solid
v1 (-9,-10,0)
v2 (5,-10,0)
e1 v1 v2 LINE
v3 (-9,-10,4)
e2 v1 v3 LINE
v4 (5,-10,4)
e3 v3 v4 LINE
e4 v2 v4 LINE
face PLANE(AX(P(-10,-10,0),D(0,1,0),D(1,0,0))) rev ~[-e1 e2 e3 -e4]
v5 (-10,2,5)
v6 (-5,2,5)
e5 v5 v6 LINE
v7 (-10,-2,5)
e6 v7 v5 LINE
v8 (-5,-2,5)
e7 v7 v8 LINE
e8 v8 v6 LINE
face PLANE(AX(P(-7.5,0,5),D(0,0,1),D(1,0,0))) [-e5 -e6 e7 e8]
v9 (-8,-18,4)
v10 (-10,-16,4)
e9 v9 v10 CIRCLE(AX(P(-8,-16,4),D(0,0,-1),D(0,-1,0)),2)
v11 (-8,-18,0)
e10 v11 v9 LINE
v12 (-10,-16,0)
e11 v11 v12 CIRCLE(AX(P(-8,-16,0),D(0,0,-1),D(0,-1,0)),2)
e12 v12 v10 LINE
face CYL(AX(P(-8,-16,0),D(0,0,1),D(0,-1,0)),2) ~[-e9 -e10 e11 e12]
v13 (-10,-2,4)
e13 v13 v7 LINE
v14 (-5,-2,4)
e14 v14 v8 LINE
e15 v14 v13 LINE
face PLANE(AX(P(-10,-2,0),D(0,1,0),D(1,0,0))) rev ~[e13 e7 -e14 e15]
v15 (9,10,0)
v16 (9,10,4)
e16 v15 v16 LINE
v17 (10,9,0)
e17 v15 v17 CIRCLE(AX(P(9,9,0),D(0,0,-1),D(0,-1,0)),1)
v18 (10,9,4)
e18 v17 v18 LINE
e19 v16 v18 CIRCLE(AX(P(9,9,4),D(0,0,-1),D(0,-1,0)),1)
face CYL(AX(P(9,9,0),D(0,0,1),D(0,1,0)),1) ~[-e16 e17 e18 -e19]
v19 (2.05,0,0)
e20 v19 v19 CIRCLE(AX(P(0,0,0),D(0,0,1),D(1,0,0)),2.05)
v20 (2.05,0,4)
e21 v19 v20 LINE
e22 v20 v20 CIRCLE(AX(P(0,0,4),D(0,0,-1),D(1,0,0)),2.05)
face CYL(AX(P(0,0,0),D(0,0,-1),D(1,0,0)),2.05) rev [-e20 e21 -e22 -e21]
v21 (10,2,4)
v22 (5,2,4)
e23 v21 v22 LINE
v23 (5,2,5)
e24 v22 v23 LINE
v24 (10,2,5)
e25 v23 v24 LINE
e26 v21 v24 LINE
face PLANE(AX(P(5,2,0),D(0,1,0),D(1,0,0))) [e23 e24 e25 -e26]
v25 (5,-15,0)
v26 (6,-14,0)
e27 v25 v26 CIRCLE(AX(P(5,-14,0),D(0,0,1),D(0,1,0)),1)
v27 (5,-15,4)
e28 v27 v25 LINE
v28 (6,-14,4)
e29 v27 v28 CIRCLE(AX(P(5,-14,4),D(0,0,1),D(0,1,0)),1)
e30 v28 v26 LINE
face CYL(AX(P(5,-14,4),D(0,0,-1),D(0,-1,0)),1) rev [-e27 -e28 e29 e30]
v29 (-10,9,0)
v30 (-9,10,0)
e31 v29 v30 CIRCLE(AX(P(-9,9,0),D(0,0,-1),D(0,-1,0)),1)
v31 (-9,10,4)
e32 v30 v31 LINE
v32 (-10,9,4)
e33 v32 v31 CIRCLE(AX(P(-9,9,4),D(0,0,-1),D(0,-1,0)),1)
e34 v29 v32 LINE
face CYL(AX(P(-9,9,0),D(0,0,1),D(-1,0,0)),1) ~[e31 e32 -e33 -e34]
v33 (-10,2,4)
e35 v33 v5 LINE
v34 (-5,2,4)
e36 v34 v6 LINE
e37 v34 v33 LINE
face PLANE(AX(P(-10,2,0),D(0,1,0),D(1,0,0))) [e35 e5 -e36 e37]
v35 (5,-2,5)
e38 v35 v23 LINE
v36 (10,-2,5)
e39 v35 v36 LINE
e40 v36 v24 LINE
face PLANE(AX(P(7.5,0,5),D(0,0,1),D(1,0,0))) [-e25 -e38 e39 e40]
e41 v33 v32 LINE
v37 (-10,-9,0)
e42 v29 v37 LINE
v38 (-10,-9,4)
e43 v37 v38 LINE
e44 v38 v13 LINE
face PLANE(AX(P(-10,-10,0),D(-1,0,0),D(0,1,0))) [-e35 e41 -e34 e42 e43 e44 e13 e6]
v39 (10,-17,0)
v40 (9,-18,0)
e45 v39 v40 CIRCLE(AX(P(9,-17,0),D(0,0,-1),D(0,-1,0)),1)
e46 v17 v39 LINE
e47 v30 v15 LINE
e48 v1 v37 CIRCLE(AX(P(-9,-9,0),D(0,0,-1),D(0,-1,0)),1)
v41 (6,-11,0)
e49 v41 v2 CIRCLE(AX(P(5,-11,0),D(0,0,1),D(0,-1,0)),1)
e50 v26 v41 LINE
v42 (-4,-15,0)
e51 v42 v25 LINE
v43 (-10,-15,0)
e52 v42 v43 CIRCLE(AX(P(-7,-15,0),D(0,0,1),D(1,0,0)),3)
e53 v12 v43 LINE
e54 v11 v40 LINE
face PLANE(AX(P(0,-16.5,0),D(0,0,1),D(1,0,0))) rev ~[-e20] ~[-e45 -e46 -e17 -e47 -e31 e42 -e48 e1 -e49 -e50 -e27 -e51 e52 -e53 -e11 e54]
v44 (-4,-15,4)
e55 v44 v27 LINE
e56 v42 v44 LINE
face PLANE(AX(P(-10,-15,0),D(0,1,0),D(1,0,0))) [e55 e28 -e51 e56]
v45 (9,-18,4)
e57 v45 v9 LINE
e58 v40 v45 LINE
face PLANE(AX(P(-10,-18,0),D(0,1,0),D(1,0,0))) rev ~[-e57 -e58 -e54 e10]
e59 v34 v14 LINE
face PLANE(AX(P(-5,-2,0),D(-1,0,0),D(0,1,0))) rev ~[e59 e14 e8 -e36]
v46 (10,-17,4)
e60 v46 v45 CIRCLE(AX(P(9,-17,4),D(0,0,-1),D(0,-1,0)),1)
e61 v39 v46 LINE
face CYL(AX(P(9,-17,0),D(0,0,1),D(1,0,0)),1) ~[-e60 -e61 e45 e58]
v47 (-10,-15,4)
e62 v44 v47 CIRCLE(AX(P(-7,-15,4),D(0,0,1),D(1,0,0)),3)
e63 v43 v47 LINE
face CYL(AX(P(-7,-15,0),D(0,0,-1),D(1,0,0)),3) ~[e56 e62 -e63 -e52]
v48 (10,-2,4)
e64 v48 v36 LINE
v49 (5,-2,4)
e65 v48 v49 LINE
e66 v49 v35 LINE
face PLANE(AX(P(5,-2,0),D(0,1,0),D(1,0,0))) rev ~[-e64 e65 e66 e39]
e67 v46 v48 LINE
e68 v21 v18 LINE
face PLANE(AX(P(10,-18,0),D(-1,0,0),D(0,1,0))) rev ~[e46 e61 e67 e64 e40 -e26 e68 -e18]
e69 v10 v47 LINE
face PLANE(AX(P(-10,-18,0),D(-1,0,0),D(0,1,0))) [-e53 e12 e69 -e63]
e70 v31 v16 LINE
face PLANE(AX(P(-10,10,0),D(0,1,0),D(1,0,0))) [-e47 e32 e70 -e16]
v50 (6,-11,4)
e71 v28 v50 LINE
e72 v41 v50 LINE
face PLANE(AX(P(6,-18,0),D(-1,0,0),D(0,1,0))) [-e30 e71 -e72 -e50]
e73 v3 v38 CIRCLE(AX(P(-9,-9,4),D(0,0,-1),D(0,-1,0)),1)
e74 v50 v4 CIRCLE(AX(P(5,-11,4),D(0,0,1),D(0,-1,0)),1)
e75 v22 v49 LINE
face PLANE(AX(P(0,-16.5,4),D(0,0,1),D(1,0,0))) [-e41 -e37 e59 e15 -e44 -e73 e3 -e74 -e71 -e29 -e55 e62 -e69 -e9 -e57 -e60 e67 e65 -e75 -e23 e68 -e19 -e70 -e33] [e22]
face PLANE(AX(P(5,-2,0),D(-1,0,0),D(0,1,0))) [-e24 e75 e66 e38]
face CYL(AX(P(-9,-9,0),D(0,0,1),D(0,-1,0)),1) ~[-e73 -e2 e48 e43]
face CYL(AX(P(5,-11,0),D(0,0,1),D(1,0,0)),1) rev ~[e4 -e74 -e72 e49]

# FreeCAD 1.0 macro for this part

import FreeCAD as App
import Part
import Sketcher
from FreeCAD import Vector
Q = App.Units.Quantity


def edges_at(feature, points):
    """Names of the edges that pass closest to the given points."""
    edges = feature.Shape.Edges
    near = lambda p: min(range(len(edges)), key=lambda i: edges[i].distToShape(Part.Vertex(*p))[0])
    return sorted({f"Edge{near(p) + 1}" for p in points})

doc = App.newDocument("Part")
params = doc.addObject("Spreadsheet::Sheet", "Params")
for row, (alias, value) in enumerate([
    ("sketch1_diameter", "4.1 mm"),
    ("pad1_length", "10 mm"),
    ("sketch2_width", "5 mm"),
    ("sketch2_height", "4 mm"),
    ("pad2_length", "5 mm"),
    ("sketch3_width", "5 mm"),
    ("sketch3_height", "4 mm"),
    ("pad3_length", "5 mm"),
    ("sketch4_width", "4 mm"),
    ("sketch4_height", "8 mm"),
    ("pad4_length", "4 mm"),
    ("sketch5_diameter", "6 mm"),
    ("pad5_length", "4 mm"),
    ("sketch6_width", "20 mm"),
    ("sketch6_height", "3 mm"),
    ("pad6_length", "4 mm"),
    ("sketch7_width", "20 mm"),
    ("pad7_length", "4 mm"),
    ("fillet_radius", "1 mm"),
    ("fillet2_radius", "2 mm"),
], start=1):
    params.set(f"A{row}", alias)
    params.set(f"B{row}", "=" + value)
    params.setAlias(f"B{row}", alias)

body = doc.addObject("PartDesign::Body", "Body")

# Sketch on XY plane
sketch1 = body.newObject("Sketcher::SketchObject", "Sketch")
sketch1.AttachmentSupport = (doc.getObject("XY_Plane"), [""])
sketch1.MapMode = "FlatFace"
sketch1.addGeometry(Part.Circle(Vector(0, 0, 0), Vector(0, 0, 1), 2), False)
sketch1.addConstraint([
    Sketcher.Constraint("Coincident", 0, 3, -1, 1),
    Sketcher.Constraint("Diameter", 0, Q("4.1 mm")),
])
sketch1.setExpression("Constraints[1]", "Params.sketch1_diameter")
pad1 = body.newObject("PartDesign::Pad", "Pad")
pad1.Profile = sketch1
pad1.setExpression("Length", "Params.pad1_length")
body2 = doc.addObject("PartDesign::Body", "Body001")

# Sketch on XY plane
sketch2 = body2.newObject("Sketcher::SketchObject", "Sketch001")
sketch2.AttachmentSupport = (doc.getObject("XY_Plane001"), [""])
sketch2.MapMode = "FlatFace"
sketch2.addGeometry([
    Part.LineSegment(Vector(-10, 2, 0), Vector(-10, -2, 0)),
    Part.LineSegment(Vector(-10, -2, 0), Vector(-5, -2, 0)),
    Part.LineSegment(Vector(-5, -2, 0), Vector(-5, 2, 0)),
    Part.LineSegment(Vector(-5, 2, 0), Vector(-10, 2, 0)),
], False)
sketch2.addConstraint([
    Sketcher.Constraint("Coincident", 0, 2, 1, 1),
    Sketcher.Constraint("Coincident", 1, 2, 2, 1),
    Sketcher.Constraint("Coincident", 2, 2, 3, 1),
    Sketcher.Constraint("Coincident", 3, 2, 0, 1),
    Sketcher.Constraint("Vertical", 0),
    Sketcher.Constraint("Horizontal", 1),
    Sketcher.Constraint("Vertical", 2),
    Sketcher.Constraint("Horizontal", 3),
    Sketcher.Constraint("DistanceX", 1, 1, 1, 2, Q("5 mm")),
    Sketcher.Constraint("DistanceY", 0, 2, 0, 1, Q("4 mm")),
    Sketcher.Constraint("DistanceX", 0, 2, -1, 1, Q("10 mm")),
    Sketcher.Constraint("DistanceY", 0, 2, -1, 1, Q("2 mm")),
])
sketch2.setExpression("Constraints[8]", "Params.sketch2_width")
sketch2.setExpression("Constraints[9]", "Params.sketch2_height")
pad2 = body2.newObject("PartDesign::Pad", "Pad001")
pad2.Profile = sketch2
pad2.setExpression("Length", "Params.pad2_length")
body3 = doc.addObject("PartDesign::Body", "Body002")

# Sketch on XY plane
sketch3 = body3.newObject("Sketcher::SketchObject", "Sketch002")
sketch3.AttachmentSupport = (doc.getObject("XY_Plane002"), [""])
sketch3.MapMode = "FlatFace"
sketch3.addGeometry([
    Part.LineSegment(Vector(5, 2, 0), Vector(5, -2, 0)),
    Part.LineSegment(Vector(5, -2, 0), Vector(10, -2, 0)),
    Part.LineSegment(Vector(10, -2, 0), Vector(10, 2, 0)),
    Part.LineSegment(Vector(10, 2, 0), Vector(5, 2, 0)),
], False)
sketch3.addConstraint([
    Sketcher.Constraint("Coincident", 0, 2, 1, 1),
    Sketcher.Constraint("Coincident", 1, 2, 2, 1),
    Sketcher.Constraint("Coincident", 2, 2, 3, 1),
    Sketcher.Constraint("Coincident", 3, 2, 0, 1),
    Sketcher.Constraint("Vertical", 0),
    Sketcher.Constraint("Horizontal", 1),
    Sketcher.Constraint("Vertical", 2),
    Sketcher.Constraint("Horizontal", 3),
    Sketcher.Constraint("DistanceX", 1, 1, 1, 2, Q("5 mm")),
    Sketcher.Constraint("DistanceY", 0, 2, 0, 1, Q("4 mm")),
    Sketcher.Constraint("DistanceX", -1, 1, 0, 2, Q("5 mm")),
    Sketcher.Constraint("DistanceY", 0, 2, -1, 1, Q("2 mm")),
])
sketch3.setExpression("Constraints[8]", "Params.sketch3_width")
sketch3.setExpression("Constraints[9]", "Params.sketch3_height")
pad3 = body3.newObject("PartDesign::Pad", "Pad002")
pad3.Profile = sketch3
pad3.setExpression("Length", "Params.pad3_length")
body4 = doc.addObject("PartDesign::Body", "Body003")

# Sketch on XY plane
sketch4 = body4.newObject("Sketcher::SketchObject", "Sketch003")
sketch4.AttachmentSupport = (doc.getObject("XY_Plane003"), [""])
sketch4.MapMode = "FlatFace"
sketch4.addGeometry([
    Part.LineSegment(Vector(6, -10, 0), Vector(6, -18, 0)),
    Part.LineSegment(Vector(6, -18, 0), Vector(10, -18, 0)),
    Part.LineSegment(Vector(10, -18, 0), Vector(10, -10, 0)),
    Part.LineSegment(Vector(10, -10, 0), Vector(6, -10, 0)),
], False)
sketch4.addConstraint([
    Sketcher.Constraint("Coincident", 0, 2, 1, 1),
    Sketcher.Constraint("Coincident", 1, 2, 2, 1),
    Sketcher.Constraint("Coincident", 2, 2, 3, 1),
    Sketcher.Constraint("Coincident", 3, 2, 0, 1),
    Sketcher.Constraint("Vertical", 0),
    Sketcher.Constraint("Horizontal", 1),
    Sketcher.Constraint("Vertical", 2),
    Sketcher.Constraint("Horizontal", 3),
    Sketcher.Constraint("DistanceX", 1, 1, 1, 2, Q("4 mm")),
    Sketcher.Constraint("DistanceY", 0, 2, 0, 1, Q("8 mm")),
    Sketcher.Constraint("DistanceX", -1, 1, 0, 2, Q("6 mm")),
    Sketcher.Constraint("DistanceY", 0, 2, -1, 1, Q("18 mm")),
])
sketch4.setExpression("Constraints[8]", "Params.sketch4_width")
sketch4.setExpression("Constraints[9]", "Params.sketch4_height")
pad4 = body4.newObject("PartDesign::Pad", "Pad003")
pad4.Profile = sketch4
pad4.setExpression("Length", "Params.pad4_length")
body5 = doc.addObject("PartDesign::Body", "Body004")

# Sketch on XY plane
sketch5 = body5.newObject("Sketcher::SketchObject", "Sketch004")
sketch5.AttachmentSupport = (doc.getObject("XY_Plane004"), [""])
sketch5.MapMode = "FlatFace"
sketch5.addGeometry(Part.Circle(Vector(-7, -15, 0), Vector(0, 0, 1), 3), False)
sketch5.addConstraint([
    Sketcher.Constraint("Diameter", 0, Q("6 mm")),
    Sketcher.Constraint("DistanceX", 0, 3, -1, 1, Q("7 mm")),
    Sketcher.Constraint("DistanceY", 0, 3, -1, 1, Q("15 mm")),
])
sketch5.setExpression("Constraints[0]", "Params.sketch5_diameter")
pad5 = body5.newObject("PartDesign::Pad", "Pad004")
pad5.Profile = sketch5
pad5.setExpression("Length", "Params.pad5_length")
body6 = doc.addObject("PartDesign::Body", "Body005")

# Sketch on XY plane
sketch6 = body6.newObject("Sketcher::SketchObject", "Sketch005")
sketch6.AttachmentSupport = (doc.getObject("XY_Plane005"), [""])
sketch6.MapMode = "FlatFace"
sketch6.addGeometry([
    Part.LineSegment(Vector(-10, -15, 0), Vector(-10, -18, 0)),
    Part.LineSegment(Vector(-10, -18, 0), Vector(10, -18, 0)),
    Part.LineSegment(Vector(10, -18, 0), Vector(10, -15, 0)),
    Part.LineSegment(Vector(10, -15, 0), Vector(-10, -15, 0)),
], False)
sketch6.addConstraint([
    Sketcher.Constraint("Coincident", 0, 2, 1, 1),
    Sketcher.Constraint("Coincident", 1, 2, 2, 1),
    Sketcher.Constraint("Coincident", 2, 2, 3, 1),
    Sketcher.Constraint("Coincident", 3, 2, 0, 1),
    Sketcher.Constraint("Vertical", 0),
    Sketcher.Constraint("Horizontal", 1),
    Sketcher.Constraint("Vertical", 2),
    Sketcher.Constraint("Horizontal", 3),
    Sketcher.Constraint("DistanceX", 1, 1, 1, 2, Q("20 mm")),
    Sketcher.Constraint("DistanceY", 0, 2, 0, 1, Q("3 mm")),
    Sketcher.Constraint("DistanceX", 0, 2, -1, 1, Q("10 mm")),
    Sketcher.Constraint("DistanceY", 0, 2, -1, 1, Q("18 mm")),
])
sketch6.setExpression("Constraints[8]", "Params.sketch6_width")
sketch6.setExpression("Constraints[9]", "Params.sketch6_height")
pad6 = body6.newObject("PartDesign::Pad", "Pad005")
pad6.Profile = sketch6
pad6.setExpression("Length", "Params.pad6_length")
body7 = doc.addObject("PartDesign::Body", "Body006")
body7.AllowCompound = True

# Sketch on XY plane
sketch7 = body7.newObject("Sketcher::SketchObject", "Sketch006")
sketch7.AttachmentSupport = (doc.getObject("XY_Plane006"), [""])
sketch7.MapMode = "FlatFace"
sketch7.addGeometry([
    Part.LineSegment(Vector(-10, 10, 0), Vector(-10, -10, 0)),
    Part.LineSegment(Vector(-10, -10, 0), Vector(10, -10, 0)),
    Part.LineSegment(Vector(10, -10, 0), Vector(10, 10, 0)),
    Part.LineSegment(Vector(10, 10, 0), Vector(-10, 10, 0)),
], False)
sketch7.addConstraint([
    Sketcher.Constraint("Coincident", 0, 2, 1, 1),
    Sketcher.Constraint("Coincident", 1, 2, 2, 1),
    Sketcher.Constraint("Coincident", 2, 2, 3, 1),
    Sketcher.Constraint("Coincident", 3, 2, 0, 1),
    Sketcher.Constraint("Vertical", 0),
    Sketcher.Constraint("Horizontal", 1),
    Sketcher.Constraint("Vertical", 2),
    Sketcher.Constraint("Horizontal", 3),
    Sketcher.Constraint("Symmetric", 0, 2, 2, 2, -1, 1),
    Sketcher.Constraint("Equal", 3, 0),
    Sketcher.Constraint("DistanceX", 1, 1, 1, 2, Q("20 mm")),
])
sketch7.setExpression("Constraints[10]", "Params.sketch7_width")
pad7 = body7.newObject("PartDesign::Pad", "Pad006")
pad7.Profile = sketch7
pad7.setExpression("Length", "Params.pad7_length")
doc.recompute()

boolean = body7.newObject("PartDesign::Boolean", "Boolean")
boolean.Type = "Fuse"
boolean.addObjects([body2])
doc.recompute()

boolean2 = body7.newObject("PartDesign::Boolean", "Boolean001")
boolean2.Type = "Fuse"
boolean2.addObjects([body3])
doc.recompute()

boolean3 = body7.newObject("PartDesign::Boolean", "Boolean002")
boolean3.Type = "Fuse"
boolean3.addObjects([body4])
doc.recompute()

boolean4 = body7.newObject("PartDesign::Boolean", "Boolean003")
boolean4.Type = "Fuse"
boolean4.addObjects([body5])
doc.recompute()

boolean5 = body7.newObject("PartDesign::Boolean", "Boolean004")
boolean5.Type = "Fuse"
boolean5.addObjects([body6])
doc.recompute()

fillet = body7.newObject("PartDesign::Fillet", "Fillet")
fillet.Base = (boolean5, edges_at(boolean5, [
    (-10, -10, 2),
    (6, -10, 2),
    (-10, 10, 2),
    (10, 10, 2),
    (6, -15, 2),
    (10, -18, 2),
]))
fillet.setExpression("Radius", "Params.fillet_radius")
doc.recompute()

fillet2 = body7.newObject("PartDesign::Fillet", "Fillet001")
fillet2.Base = (fillet, edges_at(fillet, [(-10, -18, 2)]))
fillet2.setExpression("Radius", "Params.fillet2_radius")
doc.recompute()

boolean6 = body7.newObject("PartDesign::Boolean", "Boolean005")
boolean6.Type = "Cut"
boolean6.addObjects([body])

doc.recompute()
